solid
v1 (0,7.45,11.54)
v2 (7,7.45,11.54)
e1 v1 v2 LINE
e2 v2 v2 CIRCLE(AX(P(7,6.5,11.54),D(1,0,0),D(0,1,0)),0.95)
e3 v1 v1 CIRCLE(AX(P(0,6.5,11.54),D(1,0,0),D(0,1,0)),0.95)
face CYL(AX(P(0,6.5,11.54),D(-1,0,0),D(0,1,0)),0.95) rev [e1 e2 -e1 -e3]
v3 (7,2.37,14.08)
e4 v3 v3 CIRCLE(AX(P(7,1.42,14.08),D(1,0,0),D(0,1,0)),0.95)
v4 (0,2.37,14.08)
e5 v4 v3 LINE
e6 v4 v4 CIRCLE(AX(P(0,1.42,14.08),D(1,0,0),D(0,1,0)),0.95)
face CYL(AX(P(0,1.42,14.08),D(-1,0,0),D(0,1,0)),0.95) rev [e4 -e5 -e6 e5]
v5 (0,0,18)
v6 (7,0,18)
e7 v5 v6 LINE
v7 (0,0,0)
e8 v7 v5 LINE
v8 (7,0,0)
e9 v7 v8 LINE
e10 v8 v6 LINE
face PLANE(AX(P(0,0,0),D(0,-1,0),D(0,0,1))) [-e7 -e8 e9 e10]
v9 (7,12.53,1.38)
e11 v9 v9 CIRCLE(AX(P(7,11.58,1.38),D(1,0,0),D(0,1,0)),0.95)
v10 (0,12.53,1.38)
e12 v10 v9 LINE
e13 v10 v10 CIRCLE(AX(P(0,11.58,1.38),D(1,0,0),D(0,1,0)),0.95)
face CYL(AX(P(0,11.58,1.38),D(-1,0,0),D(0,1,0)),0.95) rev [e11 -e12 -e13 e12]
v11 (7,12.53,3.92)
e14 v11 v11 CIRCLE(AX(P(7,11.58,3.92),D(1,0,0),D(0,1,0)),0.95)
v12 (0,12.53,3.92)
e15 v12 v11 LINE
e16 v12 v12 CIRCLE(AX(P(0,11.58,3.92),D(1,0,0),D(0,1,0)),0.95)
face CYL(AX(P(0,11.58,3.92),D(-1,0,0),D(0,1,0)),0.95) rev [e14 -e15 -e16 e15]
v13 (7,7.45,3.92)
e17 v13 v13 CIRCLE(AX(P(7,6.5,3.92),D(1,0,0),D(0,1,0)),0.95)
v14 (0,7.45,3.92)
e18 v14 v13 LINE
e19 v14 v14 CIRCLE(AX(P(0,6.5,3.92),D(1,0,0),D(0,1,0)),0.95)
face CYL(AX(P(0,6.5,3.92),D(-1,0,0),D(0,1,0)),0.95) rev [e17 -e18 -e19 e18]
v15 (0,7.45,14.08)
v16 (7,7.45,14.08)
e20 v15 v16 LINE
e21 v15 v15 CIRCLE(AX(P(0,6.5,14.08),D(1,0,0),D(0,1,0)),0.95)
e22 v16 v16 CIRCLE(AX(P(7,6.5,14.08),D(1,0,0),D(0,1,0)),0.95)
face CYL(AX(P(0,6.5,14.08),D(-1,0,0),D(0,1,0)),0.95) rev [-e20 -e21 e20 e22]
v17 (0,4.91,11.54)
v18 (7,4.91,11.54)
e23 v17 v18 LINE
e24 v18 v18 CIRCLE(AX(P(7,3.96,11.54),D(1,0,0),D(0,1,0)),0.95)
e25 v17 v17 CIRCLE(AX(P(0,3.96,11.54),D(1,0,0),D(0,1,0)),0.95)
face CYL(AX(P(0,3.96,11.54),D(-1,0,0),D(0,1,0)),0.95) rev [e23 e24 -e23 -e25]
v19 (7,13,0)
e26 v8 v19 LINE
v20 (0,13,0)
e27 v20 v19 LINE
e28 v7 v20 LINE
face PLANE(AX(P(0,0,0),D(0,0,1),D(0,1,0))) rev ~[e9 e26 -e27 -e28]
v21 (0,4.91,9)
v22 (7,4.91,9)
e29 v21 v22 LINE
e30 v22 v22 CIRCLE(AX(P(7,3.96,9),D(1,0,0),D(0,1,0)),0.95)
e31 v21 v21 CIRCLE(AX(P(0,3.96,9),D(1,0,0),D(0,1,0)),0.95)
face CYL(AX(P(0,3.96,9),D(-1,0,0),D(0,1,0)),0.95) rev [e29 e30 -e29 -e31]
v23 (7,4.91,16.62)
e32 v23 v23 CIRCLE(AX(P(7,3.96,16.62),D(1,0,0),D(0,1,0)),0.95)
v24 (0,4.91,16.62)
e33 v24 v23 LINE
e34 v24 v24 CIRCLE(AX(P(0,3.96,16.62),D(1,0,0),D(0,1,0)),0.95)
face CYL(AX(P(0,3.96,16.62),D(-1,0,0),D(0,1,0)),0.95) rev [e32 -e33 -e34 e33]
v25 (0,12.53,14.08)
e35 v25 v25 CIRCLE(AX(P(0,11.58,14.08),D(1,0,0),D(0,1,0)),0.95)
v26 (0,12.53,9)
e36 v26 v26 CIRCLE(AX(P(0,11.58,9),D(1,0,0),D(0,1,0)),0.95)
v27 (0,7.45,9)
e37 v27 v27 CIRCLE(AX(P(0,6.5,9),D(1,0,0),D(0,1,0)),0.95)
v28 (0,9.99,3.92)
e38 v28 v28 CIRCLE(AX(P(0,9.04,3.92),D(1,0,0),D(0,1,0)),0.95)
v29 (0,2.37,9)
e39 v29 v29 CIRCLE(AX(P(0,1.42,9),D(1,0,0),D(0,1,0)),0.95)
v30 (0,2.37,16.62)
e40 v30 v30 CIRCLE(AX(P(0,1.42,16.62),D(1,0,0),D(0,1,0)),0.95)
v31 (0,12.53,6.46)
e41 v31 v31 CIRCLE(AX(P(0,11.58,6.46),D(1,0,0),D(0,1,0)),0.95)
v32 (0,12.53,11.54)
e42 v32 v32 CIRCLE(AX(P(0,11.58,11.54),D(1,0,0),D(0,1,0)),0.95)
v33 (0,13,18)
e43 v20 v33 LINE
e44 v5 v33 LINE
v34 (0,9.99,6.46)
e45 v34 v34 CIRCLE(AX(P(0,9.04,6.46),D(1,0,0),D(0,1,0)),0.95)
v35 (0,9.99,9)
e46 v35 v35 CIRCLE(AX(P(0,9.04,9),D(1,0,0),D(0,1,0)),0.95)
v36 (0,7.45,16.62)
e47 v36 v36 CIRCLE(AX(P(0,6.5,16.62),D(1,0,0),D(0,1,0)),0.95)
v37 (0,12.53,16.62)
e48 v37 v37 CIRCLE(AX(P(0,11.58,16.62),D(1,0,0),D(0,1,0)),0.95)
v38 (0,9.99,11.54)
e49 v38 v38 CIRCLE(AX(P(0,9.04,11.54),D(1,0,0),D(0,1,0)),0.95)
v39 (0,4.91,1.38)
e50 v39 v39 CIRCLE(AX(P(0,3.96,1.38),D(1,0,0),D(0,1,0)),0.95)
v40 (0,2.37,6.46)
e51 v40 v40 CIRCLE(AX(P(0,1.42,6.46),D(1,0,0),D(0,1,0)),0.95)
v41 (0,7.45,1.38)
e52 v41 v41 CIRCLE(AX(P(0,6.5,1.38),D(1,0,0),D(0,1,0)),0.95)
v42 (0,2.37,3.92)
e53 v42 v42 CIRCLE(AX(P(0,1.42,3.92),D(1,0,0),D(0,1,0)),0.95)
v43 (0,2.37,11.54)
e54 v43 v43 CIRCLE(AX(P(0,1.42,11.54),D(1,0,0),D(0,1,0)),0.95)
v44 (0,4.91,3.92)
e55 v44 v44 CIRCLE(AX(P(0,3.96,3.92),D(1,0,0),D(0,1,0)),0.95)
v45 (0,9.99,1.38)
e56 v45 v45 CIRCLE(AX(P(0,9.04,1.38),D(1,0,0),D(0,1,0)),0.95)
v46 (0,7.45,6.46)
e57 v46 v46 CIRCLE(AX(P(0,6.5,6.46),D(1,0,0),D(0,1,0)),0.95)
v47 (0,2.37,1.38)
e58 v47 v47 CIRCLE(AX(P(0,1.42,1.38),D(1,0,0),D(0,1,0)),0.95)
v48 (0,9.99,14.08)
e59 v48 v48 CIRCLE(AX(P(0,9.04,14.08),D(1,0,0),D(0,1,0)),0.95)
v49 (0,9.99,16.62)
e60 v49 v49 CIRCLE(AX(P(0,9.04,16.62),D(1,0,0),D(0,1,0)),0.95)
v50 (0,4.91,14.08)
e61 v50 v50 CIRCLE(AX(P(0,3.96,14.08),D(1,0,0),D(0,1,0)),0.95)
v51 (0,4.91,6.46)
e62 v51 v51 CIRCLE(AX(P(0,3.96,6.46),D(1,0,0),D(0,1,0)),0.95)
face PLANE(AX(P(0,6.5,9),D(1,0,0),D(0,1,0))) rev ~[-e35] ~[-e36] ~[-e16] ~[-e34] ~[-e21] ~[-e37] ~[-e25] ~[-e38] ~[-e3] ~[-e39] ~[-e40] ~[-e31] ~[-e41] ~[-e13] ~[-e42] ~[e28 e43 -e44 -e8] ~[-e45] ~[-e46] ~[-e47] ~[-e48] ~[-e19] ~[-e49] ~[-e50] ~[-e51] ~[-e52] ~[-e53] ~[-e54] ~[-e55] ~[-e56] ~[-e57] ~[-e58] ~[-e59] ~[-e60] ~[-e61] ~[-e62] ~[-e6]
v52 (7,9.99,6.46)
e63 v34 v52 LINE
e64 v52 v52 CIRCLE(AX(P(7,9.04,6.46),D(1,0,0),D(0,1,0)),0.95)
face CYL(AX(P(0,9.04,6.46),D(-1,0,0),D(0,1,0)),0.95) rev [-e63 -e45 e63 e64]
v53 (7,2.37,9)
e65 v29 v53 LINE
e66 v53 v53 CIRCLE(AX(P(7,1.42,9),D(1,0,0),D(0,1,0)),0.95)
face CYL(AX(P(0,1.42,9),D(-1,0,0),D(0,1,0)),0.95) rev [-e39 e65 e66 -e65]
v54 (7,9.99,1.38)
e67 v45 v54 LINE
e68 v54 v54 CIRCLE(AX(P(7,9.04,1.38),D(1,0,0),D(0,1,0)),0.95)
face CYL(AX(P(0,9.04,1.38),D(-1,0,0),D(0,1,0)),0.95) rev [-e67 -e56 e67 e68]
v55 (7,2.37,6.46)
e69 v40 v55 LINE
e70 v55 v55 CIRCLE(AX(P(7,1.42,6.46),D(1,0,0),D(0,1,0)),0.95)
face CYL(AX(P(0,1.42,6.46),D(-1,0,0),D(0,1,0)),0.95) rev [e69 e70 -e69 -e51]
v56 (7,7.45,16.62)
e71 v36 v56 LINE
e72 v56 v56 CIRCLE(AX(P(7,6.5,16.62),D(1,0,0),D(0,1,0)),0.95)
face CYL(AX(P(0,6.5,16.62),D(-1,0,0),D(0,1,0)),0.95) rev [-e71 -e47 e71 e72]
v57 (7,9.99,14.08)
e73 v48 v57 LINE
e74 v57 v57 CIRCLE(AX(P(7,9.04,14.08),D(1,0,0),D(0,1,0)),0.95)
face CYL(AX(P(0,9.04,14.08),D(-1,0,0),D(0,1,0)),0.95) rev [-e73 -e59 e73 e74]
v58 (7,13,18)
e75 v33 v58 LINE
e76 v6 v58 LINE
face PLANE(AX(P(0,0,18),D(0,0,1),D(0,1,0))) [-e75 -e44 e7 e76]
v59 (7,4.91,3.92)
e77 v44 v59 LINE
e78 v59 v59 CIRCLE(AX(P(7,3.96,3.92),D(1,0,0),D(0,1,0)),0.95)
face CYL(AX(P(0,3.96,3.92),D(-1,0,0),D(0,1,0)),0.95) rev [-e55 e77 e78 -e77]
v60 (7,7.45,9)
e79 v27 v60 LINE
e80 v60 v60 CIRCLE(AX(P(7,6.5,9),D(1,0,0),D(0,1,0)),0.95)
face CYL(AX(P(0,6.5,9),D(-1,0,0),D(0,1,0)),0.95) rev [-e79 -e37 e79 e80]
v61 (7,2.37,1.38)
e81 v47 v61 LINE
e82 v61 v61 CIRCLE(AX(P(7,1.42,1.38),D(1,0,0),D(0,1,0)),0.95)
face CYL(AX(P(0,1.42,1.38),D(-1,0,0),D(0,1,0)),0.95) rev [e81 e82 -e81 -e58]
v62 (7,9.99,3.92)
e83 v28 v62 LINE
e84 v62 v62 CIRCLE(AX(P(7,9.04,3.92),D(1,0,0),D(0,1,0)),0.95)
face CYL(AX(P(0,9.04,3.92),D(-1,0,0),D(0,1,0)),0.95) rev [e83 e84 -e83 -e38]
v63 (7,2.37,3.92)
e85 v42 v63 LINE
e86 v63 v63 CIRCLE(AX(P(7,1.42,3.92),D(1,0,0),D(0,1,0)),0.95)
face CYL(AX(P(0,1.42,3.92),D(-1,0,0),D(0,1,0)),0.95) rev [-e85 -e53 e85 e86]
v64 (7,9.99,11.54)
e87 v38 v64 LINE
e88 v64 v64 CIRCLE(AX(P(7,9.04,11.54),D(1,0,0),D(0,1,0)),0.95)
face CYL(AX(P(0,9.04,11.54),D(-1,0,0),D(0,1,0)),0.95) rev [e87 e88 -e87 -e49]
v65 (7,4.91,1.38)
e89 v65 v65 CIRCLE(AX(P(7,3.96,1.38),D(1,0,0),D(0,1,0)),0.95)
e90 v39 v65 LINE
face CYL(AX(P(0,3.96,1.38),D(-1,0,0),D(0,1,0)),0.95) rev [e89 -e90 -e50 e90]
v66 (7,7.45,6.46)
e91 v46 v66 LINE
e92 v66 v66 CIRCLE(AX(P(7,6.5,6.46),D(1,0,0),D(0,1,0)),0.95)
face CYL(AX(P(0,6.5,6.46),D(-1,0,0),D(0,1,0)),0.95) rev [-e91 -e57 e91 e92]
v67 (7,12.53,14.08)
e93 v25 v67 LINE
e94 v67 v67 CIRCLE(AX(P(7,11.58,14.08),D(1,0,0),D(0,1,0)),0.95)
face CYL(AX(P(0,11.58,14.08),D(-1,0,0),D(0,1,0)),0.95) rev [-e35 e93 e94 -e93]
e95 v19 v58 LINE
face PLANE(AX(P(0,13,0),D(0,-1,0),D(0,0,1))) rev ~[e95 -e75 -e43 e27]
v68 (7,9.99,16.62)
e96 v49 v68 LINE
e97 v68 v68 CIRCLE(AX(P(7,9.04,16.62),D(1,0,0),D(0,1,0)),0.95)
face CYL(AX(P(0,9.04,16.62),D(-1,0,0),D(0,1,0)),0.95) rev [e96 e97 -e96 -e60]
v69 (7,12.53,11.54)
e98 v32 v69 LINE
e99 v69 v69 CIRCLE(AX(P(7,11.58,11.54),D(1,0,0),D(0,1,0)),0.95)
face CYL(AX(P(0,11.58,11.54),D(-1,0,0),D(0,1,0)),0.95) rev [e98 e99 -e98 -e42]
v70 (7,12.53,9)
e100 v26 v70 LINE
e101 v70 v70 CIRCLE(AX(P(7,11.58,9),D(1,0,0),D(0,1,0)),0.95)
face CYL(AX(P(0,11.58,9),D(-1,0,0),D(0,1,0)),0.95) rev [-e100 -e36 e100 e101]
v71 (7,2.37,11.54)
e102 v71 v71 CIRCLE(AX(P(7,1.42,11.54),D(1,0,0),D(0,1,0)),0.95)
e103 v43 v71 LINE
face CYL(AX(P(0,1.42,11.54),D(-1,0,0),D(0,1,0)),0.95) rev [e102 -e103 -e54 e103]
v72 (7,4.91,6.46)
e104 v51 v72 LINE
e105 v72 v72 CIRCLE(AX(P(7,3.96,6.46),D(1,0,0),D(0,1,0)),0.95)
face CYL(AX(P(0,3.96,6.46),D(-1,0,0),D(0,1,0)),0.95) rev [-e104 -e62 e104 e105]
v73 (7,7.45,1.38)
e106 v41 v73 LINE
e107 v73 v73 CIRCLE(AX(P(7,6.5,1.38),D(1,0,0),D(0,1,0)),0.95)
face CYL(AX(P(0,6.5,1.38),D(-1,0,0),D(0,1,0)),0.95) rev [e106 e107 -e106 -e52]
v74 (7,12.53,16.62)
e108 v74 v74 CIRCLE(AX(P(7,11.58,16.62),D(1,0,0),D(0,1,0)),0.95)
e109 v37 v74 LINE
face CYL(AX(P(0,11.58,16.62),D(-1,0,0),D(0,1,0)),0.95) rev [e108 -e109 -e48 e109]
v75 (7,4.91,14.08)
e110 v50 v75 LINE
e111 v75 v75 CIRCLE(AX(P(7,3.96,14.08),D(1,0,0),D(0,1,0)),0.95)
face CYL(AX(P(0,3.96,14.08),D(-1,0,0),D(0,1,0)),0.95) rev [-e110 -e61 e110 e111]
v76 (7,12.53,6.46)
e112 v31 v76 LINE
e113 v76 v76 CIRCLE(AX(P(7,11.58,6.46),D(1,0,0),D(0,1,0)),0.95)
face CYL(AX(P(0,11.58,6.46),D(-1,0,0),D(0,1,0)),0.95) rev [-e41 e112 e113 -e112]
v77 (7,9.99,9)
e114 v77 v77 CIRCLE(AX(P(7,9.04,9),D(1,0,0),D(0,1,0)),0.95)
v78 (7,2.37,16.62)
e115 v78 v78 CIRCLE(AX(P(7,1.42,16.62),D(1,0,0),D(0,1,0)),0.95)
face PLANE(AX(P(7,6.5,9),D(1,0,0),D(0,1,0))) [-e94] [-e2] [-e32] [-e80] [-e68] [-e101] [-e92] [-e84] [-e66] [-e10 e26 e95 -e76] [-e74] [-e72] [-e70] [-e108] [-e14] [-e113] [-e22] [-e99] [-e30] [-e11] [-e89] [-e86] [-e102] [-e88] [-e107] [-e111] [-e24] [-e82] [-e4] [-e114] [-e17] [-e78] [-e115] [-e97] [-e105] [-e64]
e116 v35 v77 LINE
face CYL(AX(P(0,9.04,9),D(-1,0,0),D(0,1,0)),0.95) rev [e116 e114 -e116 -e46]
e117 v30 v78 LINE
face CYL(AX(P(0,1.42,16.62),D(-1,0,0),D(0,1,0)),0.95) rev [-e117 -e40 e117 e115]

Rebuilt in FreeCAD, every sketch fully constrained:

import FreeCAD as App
import Part
import Sketcher

V = App.Vector
Q = App.Units.Quantity

doc = App.newDocument("Part")
body = doc.addObject("PartDesign::Body", "Body")

# Sketch on YZ plane
sketch1 = body.newObject("Sketcher::SketchObject", "Sketch")
sketch1.AttachmentSupport = (doc.getObject("YZ_Plane"), [""])
sketch1.MapMode = "FlatFace"
sketch1.addGeometry([
    Part.LineSegment(V(0, 18, 0), V(0, 0, 0)),  # 0
    Part.LineSegment(V(0, 0, 0), V(13, 0, 0)),  # 1
    Part.LineSegment(V(13, 0, 0), V(13, 18, 0)),  # 2
    Part.LineSegment(V(13, 18, 0), V(0, 18, 0)),  # 3
    Part.Circle(V(1.4, 1.4, 0), V(0, 0, 1), 0.9),  # 4
    Part.Circle(V(1.4, 3.9, 0), V(0, 0, 1), 0.9),  # 5
    Part.Circle(V(4, 1.4, 0), V(0, 0, 1), 0.9),  # 6
    Part.Circle(V(4, 3.9, 0), V(0, 0, 1), 0.9),  # 7
    Part.Circle(V(1.4, 6.5, 0), V(0, 0, 1), 0.9),  # 8
    Part.Circle(V(4, 6.5, 0), V(0, 0, 1), 0.9),  # 9
    Part.Circle(V(6.5, 1.4, 0), V(0, 0, 1), 0.9),  # 10
    Part.Circle(V(9, 1.4, 0), V(0, 0, 1), 0.9),  # 11
    Part.Circle(V(6.5, 3.9, 0), V(0, 0, 1), 0.9),  # 12
    Part.Circle(V(9, 3.9, 0), V(0, 0, 1), 0.9),  # 13
    Part.Circle(V(11.6, 1.4, 0), V(0, 0, 1), 0.9),  # 14
    Part.Circle(V(11.6, 3.9, 0), V(0, 0, 1), 0.9),  # 15
    Part.Circle(V(6.5, 6.5, 0), V(0, 0, 1), 0.9),  # 16
    Part.Circle(V(9, 6.5, 0), V(0, 0, 1), 0.9),  # 17
    Part.Circle(V(11.6, 6.5, 0), V(0, 0, 1), 0.9),  # 18
    Part.Circle(V(1.4, 9, 0), V(0, 0, 1), 0.9),  # 19
    Part.Circle(V(1.4, 11.5, 0), V(0, 0, 1), 0.9),  # 20
    Part.Circle(V(4, 9, 0), V(0, 0, 1), 0.9),  # 21
    Part.Circle(V(4, 11.5, 0), V(0, 0, 1), 0.9),  # 22
    Part.Circle(V(1.4, 14.1, 0), V(0, 0, 1), 0.9),  # 23
    Part.Circle(V(1.4, 16.6, 0), V(0, 0, 1), 0.9),  # 24
    Part.Circle(V(4, 14.1, 0), V(0, 0, 1), 0.9),  # 25
    Part.Circle(V(4, 16.6, 0), V(0, 0, 1), 0.9),  # 26
    Part.Circle(V(6.5, 9, 0), V(0, 0, 1), 0.9),  # 27
    Part.Circle(V(9, 9, 0), V(0, 0, 1), 0.9),  # 28
    Part.Circle(V(6.5, 11.5, 0), V(0, 0, 1), 0.9),  # 29
    Part.Circle(V(9, 11.5, 0), V(0, 0, 1), 0.9),  # 30
    Part.Circle(V(11.6, 9, 0), V(0, 0, 1), 0.9),  # 31
    Part.Circle(V(11.6, 11.5, 0), V(0, 0, 1), 0.9),  # 32
    Part.Circle(V(6.5, 14.1, 0), V(0, 0, 1), 0.9),  # 33
    Part.Circle(V(9, 14.1, 0), V(0, 0, 1), 0.9),  # 34
    Part.Circle(V(6.5, 16.6, 0), V(0, 0, 1), 0.9),  # 35
    Part.Circle(V(9, 16.6, 0), V(0, 0, 1), 0.9),  # 36
    Part.Circle(V(11.6, 14.1, 0), V(0, 0, 1), 0.9),  # 37
    Part.Circle(V(11.6, 16.6, 0), V(0, 0, 1), 0.9),  # 38
], False)
sketch1.addConstraint([
    Sketcher.Constraint("Coincident", 0, 2, 1, 1),
    Sketcher.Constraint("Coincident", 1, 2, 2, 1),
    Sketcher.Constraint("Coincident", 2, 2, 3, 1),
    Sketcher.Constraint("Coincident", 3, 2, 0, 1),
    Sketcher.Constraint("Vertical", 0),
    Sketcher.Constraint("Horizontal", 1),
    Sketcher.Constraint("Vertical", 2),
    Sketcher.Constraint("Horizontal", 3),
    Sketcher.Constraint("Coincident", 0, 2, -1, 1),
    Sketcher.Constraint("Equal", 4, 5),
    Sketcher.Constraint("Equal", 5, 6),
    Sketcher.Constraint("Equal", 6, 7),
    Sketcher.Constraint("Equal", 7, 8),
    Sketcher.Constraint("Equal", 8, 9),
    Sketcher.Constraint("Equal", 9, 10),
    Sketcher.Constraint("Equal", 10, 11),
    Sketcher.Constraint("Equal", 11, 12),
    Sketcher.Constraint("Equal", 12, 13),
    Sketcher.Constraint("Equal", 13, 14),
    Sketcher.Constraint("Equal", 14, 15),
    Sketcher.Constraint("Equal", 15, 16),
    Sketcher.Constraint("Equal", 16, 17),
    Sketcher.Constraint("Equal", 17, 18),
    Sketcher.Constraint("Equal", 18, 19),
    Sketcher.Constraint("Equal", 19, 20),
    Sketcher.Constraint("Equal", 20, 21),
    Sketcher.Constraint("Equal", 21, 22),
    Sketcher.Constraint("Equal", 22, 23),
    Sketcher.Constraint("Equal", 23, 24),
    Sketcher.Constraint("Equal", 24, 25),
    Sketcher.Constraint("Equal", 25, 26),
    Sketcher.Constraint("Equal", 26, 27),
    Sketcher.Constraint("Equal", 27, 28),
    Sketcher.Constraint("Equal", 28, 29),
    Sketcher.Constraint("Equal", 29, 30),
    Sketcher.Constraint("Equal", 30, 31),
    Sketcher.Constraint("Equal", 31, 32),
    Sketcher.Constraint("Equal", 32, 33),
    Sketcher.Constraint("Equal", 33, 34),
    Sketcher.Constraint("Equal", 34, 35),
    Sketcher.Constraint("Equal", 35, 36),
    Sketcher.Constraint("Equal", 36, 37),
    Sketcher.Constraint("Equal", 37, 38),
    Sketcher.Constraint("Horizontal", 4, 3, 6, 3),
    Sketcher.Constraint("Horizontal", 5, 3, 7, 3),
    Sketcher.Constraint("Horizontal", 8, 3, 9, 3),
    Sketcher.Constraint("Horizontal", 6, 3, 10, 3),
    Sketcher.Constraint("Horizontal", 10, 3, 11, 3),
    Sketcher.Constraint("Horizontal", 7, 3, 12, 3),
    Sketcher.Constraint("Horizontal", 12, 3, 13, 3),
    Sketcher.Constraint("Horizontal", 11, 3, 14, 3),
    Sketcher.Constraint("Horizontal", 13, 3, 15, 3),
    Sketcher.Constraint("Horizontal", 9, 3, 16, 3),
    Sketcher.Constraint("Horizontal", 16, 3, 17, 3),
    Sketcher.Constraint("Horizontal", 17, 3, 18, 3),
    Sketcher.Constraint("Horizontal", 19, 3, 21, 3),
    Sketcher.Constraint("Horizontal", 20, 3, 22, 3),
    Sketcher.Constraint("Horizontal", 23, 3, 25, 3),
    Sketcher.Constraint("Horizontal", 24, 3, 26, 3),
    Sketcher.Constraint("Horizontal", 21, 3, 27, 3),
    Sketcher.Constraint("Horizontal", 27, 3, 28, 3),
    Sketcher.Constraint("Horizontal", 22, 3, 29, 3),
    Sketcher.Constraint("Horizontal", 29, 3, 30, 3),
    Sketcher.Constraint("Horizontal", 28, 3, 31, 3),
    Sketcher.Constraint("Horizontal", 30, 3, 32, 3),
    Sketcher.Constraint("Horizontal", 25, 3, 33, 3),
    Sketcher.Constraint("Horizontal", 33, 3, 34, 3),
    Sketcher.Constraint("Horizontal", 26, 3, 35, 3),
    Sketcher.Constraint("Horizontal", 35, 3, 36, 3),
    Sketcher.Constraint("Horizontal", 34, 3, 37, 3),
    Sketcher.Constraint("Horizontal", 36, 3, 38, 3),
    Sketcher.Constraint("Vertical", 4, 3, 5, 3),
    Sketcher.Constraint("Vertical", 6, 3, 7, 3),
    Sketcher.Constraint("Vertical", 5, 3, 8, 3),
    Sketcher.Constraint("Vertical", 7, 3, 9, 3),
    Sketcher.Constraint("Vertical", 10, 3, 12, 3),
    Sketcher.Constraint("Vertical", 11, 3, 13, 3),
    Sketcher.Constraint("Vertical", 14, 3, 15, 3),
    Sketcher.Constraint("Vertical", 12, 3, 16, 3),
    Sketcher.Constraint("Vertical", 13, 3, 17, 3),
    Sketcher.Constraint("Vertical", 15, 3, 18, 3),
    Sketcher.Constraint("Vertical", 8, 3, 19, 3),
    Sketcher.Constraint("Vertical", 19, 3, 20, 3),
    Sketcher.Constraint("Vertical", 9, 3, 21, 3),
    Sketcher.Constraint("Vertical", 21, 3, 22, 3),
    Sketcher.Constraint("Vertical", 20, 3, 23, 3),
    Sketcher.Constraint("Vertical", 23, 3, 24, 3),
    Sketcher.Constraint("Vertical", 22, 3, 25, 3),
    Sketcher.Constraint("Vertical", 25, 3, 26, 3),
    Sketcher.Constraint("Vertical", 16, 3, 27, 3),
    Sketcher.Constraint("Vertical", 17, 3, 28, 3),
    Sketcher.Constraint("Vertical", 27, 3, 29, 3),
    Sketcher.Constraint("Vertical", 28, 3, 30, 3),
    Sketcher.Constraint("Vertical", 18, 3, 31, 3),
    Sketcher.Constraint("Vertical", 31, 3, 32, 3),
    Sketcher.Constraint("Vertical", 29, 3, 33, 3),
    Sketcher.Constraint("Vertical", 30, 3, 34, 3),
    Sketcher.Constraint("Vertical", 33, 3, 35, 3),
    Sketcher.Constraint("Vertical", 34, 3, 36, 3),
    Sketcher.Constraint("Vertical", 32, 3, 37, 3),
    Sketcher.Constraint("Vertical", 37, 3, 38, 3),
    Sketcher.Constraint("Diameter", 4, Q("1.9 mm")),
    Sketcher.Constraint("DistanceX", 1, 1, 1, 2, Q("13 mm")),
    Sketcher.Constraint("DistanceY", 0, 2, 0, 1, Q("18 mm")),
    Sketcher.Constraint("DistanceY", -1, 1, 19, 3, Q("9 mm")),
    Sketcher.Constraint("DistanceX", -1, 1, 10, 3, Q("6.5 mm")),
    Sketcher.Constraint("DistanceX", -1, 1, 4, 3, Q("1.42 mm")),
    Sketcher.Constraint("DistanceY", -1, 1, 4, 3, Q("1.38 mm")),
    Sketcher.Constraint("DistanceY", -1, 1, 5, 3, Q("3.92 mm")),
    Sketcher.Constraint("DistanceX", -1, 1, 6, 3, Q("3.96 mm")),
    Sketcher.Constraint("DistanceY", -1, 1, 8, 3, Q("6.46 mm")),
    Sketcher.Constraint("DistanceX", -1, 1, 11, 3, Q("9.04 mm")),
    Sketcher.Constraint("DistanceX", -1, 1, 14, 3, Q("11.58 mm")),
    Sketcher.Constraint("DistanceY", -1, 1, 20, 3, Q("11.54 mm")),
    Sketcher.Constraint("DistanceY", -1, 1, 23, 3, Q("14.08 mm")),
    Sketcher.Constraint("DistanceY", -1, 1, 24, 3, Q("16.62 mm")),
])
pad1 = body.newObject("PartDesign::Pad", "Pad")
pad1.Profile = sketch1
pad1.Length = 7

doc.recompute()
